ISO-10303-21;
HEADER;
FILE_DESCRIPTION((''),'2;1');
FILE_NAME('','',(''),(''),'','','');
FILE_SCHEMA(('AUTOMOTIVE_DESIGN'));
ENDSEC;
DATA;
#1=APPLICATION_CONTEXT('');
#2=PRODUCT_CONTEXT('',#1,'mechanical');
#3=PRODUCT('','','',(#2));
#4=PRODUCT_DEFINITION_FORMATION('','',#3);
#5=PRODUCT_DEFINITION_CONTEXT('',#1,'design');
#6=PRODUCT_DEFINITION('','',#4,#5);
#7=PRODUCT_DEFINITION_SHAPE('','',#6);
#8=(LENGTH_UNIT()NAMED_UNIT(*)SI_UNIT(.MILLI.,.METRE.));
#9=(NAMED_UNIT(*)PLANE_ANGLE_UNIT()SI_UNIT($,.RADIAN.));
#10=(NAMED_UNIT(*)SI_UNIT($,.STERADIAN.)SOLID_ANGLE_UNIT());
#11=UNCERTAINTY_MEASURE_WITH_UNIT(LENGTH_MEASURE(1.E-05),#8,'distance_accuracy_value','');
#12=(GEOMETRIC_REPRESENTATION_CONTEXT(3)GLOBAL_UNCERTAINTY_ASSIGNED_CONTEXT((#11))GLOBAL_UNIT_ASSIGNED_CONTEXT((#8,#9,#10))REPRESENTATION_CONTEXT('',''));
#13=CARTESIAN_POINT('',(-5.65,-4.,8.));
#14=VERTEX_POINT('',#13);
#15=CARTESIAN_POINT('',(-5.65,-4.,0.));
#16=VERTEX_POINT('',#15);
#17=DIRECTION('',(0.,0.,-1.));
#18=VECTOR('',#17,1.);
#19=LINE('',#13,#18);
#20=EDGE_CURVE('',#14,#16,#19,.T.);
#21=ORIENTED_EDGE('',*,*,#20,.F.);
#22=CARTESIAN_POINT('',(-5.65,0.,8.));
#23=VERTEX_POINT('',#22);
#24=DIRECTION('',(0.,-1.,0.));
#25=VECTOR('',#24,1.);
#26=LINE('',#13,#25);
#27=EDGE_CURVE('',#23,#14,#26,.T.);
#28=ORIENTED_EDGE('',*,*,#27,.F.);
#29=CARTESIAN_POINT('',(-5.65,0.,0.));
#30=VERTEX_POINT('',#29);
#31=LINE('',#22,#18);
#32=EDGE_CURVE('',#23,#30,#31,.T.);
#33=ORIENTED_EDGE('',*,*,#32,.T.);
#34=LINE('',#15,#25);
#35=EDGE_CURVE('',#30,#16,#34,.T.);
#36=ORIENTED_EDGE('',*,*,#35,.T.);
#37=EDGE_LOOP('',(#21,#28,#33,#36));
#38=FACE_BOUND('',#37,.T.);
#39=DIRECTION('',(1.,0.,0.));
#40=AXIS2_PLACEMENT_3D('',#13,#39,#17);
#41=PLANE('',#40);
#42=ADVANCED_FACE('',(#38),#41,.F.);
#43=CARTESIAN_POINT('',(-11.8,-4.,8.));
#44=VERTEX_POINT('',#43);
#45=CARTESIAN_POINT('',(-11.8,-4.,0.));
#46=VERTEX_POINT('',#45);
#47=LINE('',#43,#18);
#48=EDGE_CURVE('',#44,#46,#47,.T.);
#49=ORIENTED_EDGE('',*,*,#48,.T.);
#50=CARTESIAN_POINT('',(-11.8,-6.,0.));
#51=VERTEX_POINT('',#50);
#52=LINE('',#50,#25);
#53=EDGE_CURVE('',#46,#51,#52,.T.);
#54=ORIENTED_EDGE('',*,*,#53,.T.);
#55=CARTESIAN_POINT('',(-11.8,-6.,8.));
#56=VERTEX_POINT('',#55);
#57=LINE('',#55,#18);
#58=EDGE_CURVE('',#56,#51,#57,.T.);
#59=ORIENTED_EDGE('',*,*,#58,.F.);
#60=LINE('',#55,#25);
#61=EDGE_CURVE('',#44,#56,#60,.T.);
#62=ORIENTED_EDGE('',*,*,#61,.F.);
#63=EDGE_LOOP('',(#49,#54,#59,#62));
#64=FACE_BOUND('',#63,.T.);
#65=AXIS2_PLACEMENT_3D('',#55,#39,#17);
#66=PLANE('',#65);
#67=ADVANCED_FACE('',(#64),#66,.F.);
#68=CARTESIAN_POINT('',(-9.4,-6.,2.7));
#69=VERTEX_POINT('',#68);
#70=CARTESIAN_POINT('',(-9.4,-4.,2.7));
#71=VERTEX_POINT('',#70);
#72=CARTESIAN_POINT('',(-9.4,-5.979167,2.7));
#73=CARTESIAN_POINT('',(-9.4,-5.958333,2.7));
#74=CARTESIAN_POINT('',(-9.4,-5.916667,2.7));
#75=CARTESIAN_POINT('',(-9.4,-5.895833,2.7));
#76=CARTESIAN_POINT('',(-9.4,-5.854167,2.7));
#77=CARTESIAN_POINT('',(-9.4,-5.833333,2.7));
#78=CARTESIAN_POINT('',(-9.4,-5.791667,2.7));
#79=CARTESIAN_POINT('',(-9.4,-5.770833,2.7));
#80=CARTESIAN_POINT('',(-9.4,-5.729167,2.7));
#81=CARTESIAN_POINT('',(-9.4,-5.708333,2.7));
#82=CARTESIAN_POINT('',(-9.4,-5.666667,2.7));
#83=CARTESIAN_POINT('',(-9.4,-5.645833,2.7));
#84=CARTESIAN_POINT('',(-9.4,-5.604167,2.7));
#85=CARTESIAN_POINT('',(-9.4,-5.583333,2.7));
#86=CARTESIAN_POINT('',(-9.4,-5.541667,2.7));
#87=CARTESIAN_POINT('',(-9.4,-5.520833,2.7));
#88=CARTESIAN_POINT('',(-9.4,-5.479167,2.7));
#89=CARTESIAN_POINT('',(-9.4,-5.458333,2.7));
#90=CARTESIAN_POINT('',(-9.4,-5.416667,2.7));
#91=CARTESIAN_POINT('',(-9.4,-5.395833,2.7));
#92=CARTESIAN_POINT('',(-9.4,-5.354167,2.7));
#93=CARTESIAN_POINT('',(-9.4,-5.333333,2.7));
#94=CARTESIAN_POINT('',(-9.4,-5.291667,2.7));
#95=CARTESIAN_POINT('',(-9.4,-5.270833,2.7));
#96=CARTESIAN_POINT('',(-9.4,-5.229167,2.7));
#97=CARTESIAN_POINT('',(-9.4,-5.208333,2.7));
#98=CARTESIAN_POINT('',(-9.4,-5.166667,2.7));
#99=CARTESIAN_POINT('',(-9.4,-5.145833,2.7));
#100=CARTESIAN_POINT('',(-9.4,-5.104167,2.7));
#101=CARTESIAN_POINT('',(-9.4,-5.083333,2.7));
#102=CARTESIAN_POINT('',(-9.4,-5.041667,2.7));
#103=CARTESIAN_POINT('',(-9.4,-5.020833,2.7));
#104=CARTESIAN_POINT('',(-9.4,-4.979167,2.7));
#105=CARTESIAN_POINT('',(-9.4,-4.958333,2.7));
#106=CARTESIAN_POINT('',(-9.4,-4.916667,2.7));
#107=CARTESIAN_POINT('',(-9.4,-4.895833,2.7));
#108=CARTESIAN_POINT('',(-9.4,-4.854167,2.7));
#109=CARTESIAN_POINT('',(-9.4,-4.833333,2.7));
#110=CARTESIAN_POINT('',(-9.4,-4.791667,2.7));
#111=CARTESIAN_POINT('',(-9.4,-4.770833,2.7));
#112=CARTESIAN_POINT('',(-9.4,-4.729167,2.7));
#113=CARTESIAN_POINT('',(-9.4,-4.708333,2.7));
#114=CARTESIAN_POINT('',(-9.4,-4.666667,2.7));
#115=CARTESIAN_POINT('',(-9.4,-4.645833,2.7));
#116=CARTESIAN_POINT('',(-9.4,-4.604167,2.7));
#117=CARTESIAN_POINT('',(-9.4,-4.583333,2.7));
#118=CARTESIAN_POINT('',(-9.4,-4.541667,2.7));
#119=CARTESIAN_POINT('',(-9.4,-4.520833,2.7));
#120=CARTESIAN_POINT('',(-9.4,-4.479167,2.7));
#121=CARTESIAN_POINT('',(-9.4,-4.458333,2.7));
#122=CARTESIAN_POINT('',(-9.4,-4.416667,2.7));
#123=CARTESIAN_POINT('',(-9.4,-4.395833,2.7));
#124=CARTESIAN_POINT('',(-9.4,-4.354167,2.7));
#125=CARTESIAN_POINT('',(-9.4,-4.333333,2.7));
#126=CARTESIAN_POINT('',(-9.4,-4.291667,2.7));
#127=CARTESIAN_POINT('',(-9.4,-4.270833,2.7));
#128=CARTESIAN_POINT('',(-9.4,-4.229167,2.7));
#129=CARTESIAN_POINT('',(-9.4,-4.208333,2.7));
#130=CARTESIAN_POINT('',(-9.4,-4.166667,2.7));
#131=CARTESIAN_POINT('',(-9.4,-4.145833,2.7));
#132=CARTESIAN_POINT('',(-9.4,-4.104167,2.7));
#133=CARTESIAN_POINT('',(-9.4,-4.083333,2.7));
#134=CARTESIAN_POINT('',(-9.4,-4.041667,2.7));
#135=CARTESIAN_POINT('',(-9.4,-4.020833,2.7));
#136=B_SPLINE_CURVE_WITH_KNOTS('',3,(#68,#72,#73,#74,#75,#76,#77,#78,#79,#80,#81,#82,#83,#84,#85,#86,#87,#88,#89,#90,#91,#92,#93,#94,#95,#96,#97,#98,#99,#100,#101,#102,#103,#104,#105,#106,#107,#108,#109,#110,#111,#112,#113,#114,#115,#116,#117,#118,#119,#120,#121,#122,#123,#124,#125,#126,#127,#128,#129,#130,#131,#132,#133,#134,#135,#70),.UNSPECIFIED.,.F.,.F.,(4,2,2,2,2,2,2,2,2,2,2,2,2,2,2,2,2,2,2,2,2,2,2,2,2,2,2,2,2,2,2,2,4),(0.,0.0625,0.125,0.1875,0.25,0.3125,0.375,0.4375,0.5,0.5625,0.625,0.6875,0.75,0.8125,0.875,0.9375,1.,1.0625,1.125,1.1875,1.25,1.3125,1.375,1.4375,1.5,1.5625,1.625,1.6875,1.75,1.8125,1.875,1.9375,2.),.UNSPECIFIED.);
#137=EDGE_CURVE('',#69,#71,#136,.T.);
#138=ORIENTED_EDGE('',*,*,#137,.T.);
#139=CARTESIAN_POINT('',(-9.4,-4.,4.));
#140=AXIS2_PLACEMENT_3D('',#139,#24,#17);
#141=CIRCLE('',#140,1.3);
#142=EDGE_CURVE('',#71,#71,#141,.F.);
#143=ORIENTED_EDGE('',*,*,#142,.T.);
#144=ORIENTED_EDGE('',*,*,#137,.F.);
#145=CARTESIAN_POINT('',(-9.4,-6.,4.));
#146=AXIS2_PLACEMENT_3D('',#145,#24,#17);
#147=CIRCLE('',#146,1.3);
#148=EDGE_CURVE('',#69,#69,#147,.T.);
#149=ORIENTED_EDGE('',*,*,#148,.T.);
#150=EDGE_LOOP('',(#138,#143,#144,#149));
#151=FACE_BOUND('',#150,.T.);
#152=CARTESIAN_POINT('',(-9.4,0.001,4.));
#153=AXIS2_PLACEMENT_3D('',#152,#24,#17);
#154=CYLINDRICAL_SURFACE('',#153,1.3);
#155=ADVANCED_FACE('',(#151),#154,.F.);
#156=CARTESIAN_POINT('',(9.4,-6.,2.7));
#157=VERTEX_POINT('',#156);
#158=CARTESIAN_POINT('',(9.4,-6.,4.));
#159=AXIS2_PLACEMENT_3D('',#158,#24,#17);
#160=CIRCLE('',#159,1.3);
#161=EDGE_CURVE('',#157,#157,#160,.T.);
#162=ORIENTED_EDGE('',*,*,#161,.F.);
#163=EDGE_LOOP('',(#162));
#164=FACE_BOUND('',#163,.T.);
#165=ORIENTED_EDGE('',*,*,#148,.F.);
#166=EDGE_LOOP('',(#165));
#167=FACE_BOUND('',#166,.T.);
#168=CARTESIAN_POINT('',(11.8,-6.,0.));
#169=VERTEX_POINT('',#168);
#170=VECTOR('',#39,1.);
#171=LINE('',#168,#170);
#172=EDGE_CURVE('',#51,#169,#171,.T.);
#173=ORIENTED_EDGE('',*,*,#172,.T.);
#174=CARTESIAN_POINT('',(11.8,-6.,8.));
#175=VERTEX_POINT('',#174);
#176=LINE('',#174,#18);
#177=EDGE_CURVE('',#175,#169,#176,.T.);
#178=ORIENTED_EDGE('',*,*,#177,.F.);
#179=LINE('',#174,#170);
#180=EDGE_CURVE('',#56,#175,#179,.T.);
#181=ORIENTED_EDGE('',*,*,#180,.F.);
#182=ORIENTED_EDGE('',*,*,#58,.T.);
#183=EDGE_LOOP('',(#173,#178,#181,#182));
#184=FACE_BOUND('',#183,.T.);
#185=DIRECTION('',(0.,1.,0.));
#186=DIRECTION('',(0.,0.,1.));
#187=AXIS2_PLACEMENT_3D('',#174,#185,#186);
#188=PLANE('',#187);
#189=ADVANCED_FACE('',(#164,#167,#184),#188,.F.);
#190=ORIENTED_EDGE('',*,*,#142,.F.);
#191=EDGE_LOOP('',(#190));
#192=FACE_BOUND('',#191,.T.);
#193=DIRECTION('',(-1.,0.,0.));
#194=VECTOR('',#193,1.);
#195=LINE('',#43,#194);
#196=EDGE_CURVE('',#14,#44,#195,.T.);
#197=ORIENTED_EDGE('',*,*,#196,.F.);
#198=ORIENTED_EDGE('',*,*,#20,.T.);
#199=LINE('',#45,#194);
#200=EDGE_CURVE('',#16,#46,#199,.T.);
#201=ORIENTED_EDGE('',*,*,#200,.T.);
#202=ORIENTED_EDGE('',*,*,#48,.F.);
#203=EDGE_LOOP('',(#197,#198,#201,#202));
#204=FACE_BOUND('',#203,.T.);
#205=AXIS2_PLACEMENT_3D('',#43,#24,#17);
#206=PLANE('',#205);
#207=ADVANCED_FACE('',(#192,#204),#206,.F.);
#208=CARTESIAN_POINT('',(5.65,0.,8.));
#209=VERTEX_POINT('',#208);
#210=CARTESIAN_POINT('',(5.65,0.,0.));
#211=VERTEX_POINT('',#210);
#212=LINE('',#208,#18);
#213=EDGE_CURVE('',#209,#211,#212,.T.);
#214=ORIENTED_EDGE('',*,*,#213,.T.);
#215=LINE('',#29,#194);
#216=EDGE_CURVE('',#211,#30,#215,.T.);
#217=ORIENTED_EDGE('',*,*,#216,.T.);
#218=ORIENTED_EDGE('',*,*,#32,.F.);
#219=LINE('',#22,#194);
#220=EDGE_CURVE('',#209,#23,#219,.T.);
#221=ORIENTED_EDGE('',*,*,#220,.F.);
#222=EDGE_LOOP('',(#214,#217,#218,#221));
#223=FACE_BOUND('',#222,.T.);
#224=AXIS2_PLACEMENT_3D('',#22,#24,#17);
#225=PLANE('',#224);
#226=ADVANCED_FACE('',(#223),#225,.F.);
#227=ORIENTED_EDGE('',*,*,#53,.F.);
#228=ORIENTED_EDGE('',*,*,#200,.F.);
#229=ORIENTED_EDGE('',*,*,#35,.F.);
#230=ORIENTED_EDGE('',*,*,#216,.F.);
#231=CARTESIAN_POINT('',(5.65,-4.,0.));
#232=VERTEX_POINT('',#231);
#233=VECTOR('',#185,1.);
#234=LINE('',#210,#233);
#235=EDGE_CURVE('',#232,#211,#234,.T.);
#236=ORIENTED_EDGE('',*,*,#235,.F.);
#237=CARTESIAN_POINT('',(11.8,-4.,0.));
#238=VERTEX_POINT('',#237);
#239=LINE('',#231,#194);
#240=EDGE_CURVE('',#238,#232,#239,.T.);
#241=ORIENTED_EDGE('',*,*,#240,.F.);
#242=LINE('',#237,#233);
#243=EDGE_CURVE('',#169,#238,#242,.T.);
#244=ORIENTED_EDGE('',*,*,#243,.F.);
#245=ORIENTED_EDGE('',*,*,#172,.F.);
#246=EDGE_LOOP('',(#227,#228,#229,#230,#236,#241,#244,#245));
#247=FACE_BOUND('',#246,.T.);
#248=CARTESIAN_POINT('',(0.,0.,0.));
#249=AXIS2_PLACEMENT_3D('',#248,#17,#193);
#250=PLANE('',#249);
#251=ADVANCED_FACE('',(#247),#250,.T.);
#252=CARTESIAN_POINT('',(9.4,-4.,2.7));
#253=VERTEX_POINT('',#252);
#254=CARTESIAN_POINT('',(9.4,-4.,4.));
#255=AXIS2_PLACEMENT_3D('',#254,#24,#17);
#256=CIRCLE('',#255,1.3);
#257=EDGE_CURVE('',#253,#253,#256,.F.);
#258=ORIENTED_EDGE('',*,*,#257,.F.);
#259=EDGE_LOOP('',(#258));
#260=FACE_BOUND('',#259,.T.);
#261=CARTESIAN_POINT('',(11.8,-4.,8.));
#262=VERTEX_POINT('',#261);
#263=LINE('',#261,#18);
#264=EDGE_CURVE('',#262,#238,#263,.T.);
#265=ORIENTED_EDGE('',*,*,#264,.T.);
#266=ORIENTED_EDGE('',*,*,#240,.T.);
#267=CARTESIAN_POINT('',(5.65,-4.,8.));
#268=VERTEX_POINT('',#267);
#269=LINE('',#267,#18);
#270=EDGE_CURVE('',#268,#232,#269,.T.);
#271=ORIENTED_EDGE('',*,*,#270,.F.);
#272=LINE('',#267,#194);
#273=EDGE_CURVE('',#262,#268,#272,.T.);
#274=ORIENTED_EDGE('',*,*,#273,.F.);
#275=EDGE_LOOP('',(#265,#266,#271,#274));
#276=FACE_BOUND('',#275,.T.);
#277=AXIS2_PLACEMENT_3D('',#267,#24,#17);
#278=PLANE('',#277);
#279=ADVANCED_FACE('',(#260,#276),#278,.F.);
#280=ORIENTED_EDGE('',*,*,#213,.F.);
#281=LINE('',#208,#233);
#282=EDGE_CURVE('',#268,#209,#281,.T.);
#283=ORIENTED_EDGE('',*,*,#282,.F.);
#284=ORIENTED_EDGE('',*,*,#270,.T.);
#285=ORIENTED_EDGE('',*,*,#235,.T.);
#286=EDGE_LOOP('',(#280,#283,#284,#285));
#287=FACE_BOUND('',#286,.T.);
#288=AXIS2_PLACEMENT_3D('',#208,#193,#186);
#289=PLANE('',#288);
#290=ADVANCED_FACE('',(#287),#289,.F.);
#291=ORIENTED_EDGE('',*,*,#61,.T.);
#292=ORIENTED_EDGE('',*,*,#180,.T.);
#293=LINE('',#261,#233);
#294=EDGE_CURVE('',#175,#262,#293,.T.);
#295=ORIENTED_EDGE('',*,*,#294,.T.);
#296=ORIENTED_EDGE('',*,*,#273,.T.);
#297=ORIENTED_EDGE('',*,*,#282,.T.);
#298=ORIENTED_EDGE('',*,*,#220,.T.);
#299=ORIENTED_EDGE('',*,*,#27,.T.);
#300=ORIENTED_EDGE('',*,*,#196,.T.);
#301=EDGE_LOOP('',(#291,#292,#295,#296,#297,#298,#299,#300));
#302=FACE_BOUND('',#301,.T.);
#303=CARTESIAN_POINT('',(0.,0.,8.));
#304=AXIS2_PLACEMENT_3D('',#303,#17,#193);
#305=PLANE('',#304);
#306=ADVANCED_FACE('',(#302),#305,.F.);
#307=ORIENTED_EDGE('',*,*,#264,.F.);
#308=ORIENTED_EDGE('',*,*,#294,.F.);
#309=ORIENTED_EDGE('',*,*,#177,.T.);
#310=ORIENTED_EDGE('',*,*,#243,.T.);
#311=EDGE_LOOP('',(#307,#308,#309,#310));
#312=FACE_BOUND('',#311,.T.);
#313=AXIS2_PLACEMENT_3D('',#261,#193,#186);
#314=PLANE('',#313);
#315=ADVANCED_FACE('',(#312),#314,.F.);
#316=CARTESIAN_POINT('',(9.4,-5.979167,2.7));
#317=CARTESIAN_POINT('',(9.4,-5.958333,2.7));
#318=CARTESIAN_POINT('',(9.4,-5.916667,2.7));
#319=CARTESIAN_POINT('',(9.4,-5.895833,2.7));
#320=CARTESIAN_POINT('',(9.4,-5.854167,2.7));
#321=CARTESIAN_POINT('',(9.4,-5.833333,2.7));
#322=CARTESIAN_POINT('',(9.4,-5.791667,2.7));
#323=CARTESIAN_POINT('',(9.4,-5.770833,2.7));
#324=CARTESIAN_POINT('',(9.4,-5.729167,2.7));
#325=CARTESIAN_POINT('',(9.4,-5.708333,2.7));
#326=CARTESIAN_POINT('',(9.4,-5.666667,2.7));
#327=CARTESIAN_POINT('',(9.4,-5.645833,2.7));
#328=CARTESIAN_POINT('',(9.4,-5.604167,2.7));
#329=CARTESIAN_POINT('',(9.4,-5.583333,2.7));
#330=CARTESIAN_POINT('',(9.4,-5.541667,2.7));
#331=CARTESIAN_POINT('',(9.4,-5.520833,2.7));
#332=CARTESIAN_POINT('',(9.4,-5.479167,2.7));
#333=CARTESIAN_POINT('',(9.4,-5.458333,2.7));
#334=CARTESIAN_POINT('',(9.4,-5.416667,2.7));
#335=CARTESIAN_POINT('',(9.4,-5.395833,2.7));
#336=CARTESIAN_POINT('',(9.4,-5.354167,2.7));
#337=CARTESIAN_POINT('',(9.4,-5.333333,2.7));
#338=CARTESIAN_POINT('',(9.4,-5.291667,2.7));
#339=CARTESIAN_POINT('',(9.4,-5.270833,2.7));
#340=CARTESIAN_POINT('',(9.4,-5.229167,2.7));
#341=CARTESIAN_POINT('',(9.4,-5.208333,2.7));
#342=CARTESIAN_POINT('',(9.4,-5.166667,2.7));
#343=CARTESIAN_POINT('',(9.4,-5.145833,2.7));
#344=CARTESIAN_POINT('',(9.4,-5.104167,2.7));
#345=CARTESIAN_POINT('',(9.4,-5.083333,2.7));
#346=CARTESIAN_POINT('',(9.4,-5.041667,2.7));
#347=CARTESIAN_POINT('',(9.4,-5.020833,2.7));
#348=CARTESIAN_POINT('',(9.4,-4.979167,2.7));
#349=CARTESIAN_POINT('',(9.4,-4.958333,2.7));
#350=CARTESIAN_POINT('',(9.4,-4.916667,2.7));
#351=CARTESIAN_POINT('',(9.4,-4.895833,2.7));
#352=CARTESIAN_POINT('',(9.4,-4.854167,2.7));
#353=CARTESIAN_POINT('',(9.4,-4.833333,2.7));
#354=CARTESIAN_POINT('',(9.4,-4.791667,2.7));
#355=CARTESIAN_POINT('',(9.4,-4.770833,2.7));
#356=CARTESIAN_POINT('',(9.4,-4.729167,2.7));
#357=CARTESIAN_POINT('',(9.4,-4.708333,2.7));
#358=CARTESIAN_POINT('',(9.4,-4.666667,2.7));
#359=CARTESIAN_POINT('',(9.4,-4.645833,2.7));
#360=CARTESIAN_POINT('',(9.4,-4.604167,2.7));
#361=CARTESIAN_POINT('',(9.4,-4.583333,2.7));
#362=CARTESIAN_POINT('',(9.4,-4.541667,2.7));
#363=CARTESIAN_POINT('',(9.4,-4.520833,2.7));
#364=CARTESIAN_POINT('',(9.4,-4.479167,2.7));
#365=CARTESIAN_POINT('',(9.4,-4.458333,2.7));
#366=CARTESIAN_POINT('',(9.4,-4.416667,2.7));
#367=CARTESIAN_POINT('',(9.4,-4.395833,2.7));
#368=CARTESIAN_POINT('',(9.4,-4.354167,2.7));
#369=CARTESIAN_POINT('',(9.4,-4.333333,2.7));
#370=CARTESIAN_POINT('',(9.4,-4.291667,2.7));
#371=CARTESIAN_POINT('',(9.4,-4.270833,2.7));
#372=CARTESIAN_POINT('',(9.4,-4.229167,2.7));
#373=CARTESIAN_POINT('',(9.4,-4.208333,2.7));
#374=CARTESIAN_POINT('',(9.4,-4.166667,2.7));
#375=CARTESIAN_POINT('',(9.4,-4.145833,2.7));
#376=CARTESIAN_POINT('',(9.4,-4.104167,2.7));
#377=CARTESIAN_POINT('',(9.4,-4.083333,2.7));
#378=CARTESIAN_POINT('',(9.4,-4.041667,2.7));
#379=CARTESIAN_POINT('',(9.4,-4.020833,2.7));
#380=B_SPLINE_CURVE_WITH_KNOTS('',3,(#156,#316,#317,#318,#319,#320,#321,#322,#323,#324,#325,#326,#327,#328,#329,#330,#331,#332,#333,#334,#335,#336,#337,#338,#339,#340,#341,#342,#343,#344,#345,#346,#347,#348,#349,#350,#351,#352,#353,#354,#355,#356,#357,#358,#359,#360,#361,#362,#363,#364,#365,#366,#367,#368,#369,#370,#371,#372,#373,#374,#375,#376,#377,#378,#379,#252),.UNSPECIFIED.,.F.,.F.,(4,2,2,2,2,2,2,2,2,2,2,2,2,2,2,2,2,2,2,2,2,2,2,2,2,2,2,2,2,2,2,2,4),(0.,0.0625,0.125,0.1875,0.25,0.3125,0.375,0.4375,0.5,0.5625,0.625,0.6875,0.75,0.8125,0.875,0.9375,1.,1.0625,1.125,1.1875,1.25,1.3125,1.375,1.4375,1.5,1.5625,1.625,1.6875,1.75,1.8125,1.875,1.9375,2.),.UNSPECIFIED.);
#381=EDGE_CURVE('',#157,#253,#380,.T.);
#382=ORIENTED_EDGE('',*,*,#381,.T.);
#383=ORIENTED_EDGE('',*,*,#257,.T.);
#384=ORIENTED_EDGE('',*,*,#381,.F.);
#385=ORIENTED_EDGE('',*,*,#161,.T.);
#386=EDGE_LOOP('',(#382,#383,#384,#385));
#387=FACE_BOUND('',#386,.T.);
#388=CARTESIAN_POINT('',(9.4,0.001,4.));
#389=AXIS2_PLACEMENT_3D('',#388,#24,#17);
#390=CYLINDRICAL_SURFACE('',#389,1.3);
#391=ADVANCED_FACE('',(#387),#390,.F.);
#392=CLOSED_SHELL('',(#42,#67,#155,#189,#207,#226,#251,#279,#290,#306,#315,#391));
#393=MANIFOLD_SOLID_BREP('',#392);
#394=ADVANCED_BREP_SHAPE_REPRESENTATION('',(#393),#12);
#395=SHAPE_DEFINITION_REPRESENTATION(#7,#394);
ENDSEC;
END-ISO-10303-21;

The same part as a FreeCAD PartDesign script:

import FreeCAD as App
import Part
import Sketcher
from FreeCAD import Vector

doc = App.newDocument("Part")
body = doc.addObject("PartDesign::Body", "Body")

# Sketch on XY plane
sketch1 = body.newObject("Sketcher::SketchObject", "Sketch")
sketch1.AttachmentSupport = (doc.getObject("XY_Plane"), [""])
sketch1.MapMode = "FlatFace"
sketch1.addGeometry([
    Part.LineSegment(Vector(5.65, 0, 0), Vector(-5.65, 0, 0)),  # 0
    Part.LineSegment(Vector(-5.65, 0, 0), Vector(-5.65, -4, 0)),  # 1
    Part.LineSegment(Vector(-5.65, -4, 0), Vector(-11.8, -4, 0)),  # 2
    Part.LineSegment(Vector(-11.8, -4, 0), Vector(-11.8, -6, 0)),  # 3
    Part.LineSegment(Vector(-11.8, -6, 0), Vector(11.8, -6, 0)),  # 4
    Part.LineSegment(Vector(11.8, -6, 0), Vector(11.8, -4, 0)),  # 5
    Part.LineSegment(Vector(11.8, -4, 0), Vector(5.65, -4, 0)),  # 6
    Part.LineSegment(Vector(5.65, -4, 0), Vector(5.65, 0, 0)),  # 7
], False)
sketch1.addConstraint([
    Sketcher.Constraint("Coincident", 0, 2, 1, 1),
    Sketcher.Constraint("Coincident", 1, 2, 2, 1),
    Sketcher.Constraint("Coincident", 2, 2, 3, 1),
    Sketcher.Constraint("Coincident", 3, 2, 4, 1),
    Sketcher.Constraint("Coincident", 4, 2, 5, 1),
    Sketcher.Constraint("Coincident", 5, 2, 6, 1),
    Sketcher.Constraint("Coincident", 6, 2, 7, 1),
    Sketcher.Constraint("Coincident", 7, 2, 0, 1),
    Sketcher.Constraint("Horizontal", 0),
    Sketcher.Constraint("Vertical", 1),
    Sketcher.Constraint("Horizontal", 2),
    Sketcher.Constraint("Vertical", 3),
    Sketcher.Constraint("Horizontal", 4),
    Sketcher.Constraint("Vertical", 5),
    Sketcher.Constraint("Horizontal", 6),
    Sketcher.Constraint("Vertical", 7),
    Sketcher.Constraint("Symmetric", 0, 2, 7, 2, -1, 1),
    Sketcher.Constraint("Symmetric", 2, 2, 5, 2, -2),
    Sketcher.Constraint("DistanceY", 1, 2, 1, 1, 4.0),
    Sketcher.Constraint("DistanceY", 3, 2, 3, 1, 2.0),
    Sketcher.Constraint("DistanceX", 0, 2, 0, 1, 11.3),
    Sketcher.Constraint("DistanceX", 4, 1, 4, 2, 23.6),
])
pad1 = body.newObject("PartDesign::Pad", "Pad")
pad1.Profile = sketch1
pad1.Length = 8

# Sketch on XZ plane
sketch2 = body.newObject("Sketcher::SketchObject", "Sketch001")
sketch2.AttachmentSupport = (doc.getObject("XZ_Plane"), [""])
sketch2.MapMode = "FlatFace"
sketch2.AttachmentOffset = App.Placement(Vector(0, 0, 6), App.Rotation())
sketch2.addGeometry(Part.Circle(Vector(-9.4, 4, 0), Vector(0, 0, 1), 1.3), False)
sketch2.addConstraint([
    Sketcher.Constraint("Diameter", 0, 2.6),
    Sketcher.Constraint("DistanceY", -1, 1, 0, 3, 4.0),
    Sketcher.Constraint("DistanceX", 0, 3, -1, 1, 9.4),
])
pocket1 = body.newObject("PartDesign::Pocket", "Pocket")
pocket1.Profile = sketch2
pocket1.Type = "UpToFirst"

# Sketch on XZ plane
sketch3 = body.newObject("Sketcher::SketchObject", "Sketch002")
sketch3.AttachmentSupport = (doc.getObject("XZ_Plane"), [""])
sketch3.MapMode = "FlatFace"
sketch3.AttachmentOffset = App.Placement(Vector(0, 0, 6), App.Rotation())
sketch3.addGeometry(Part.Circle(Vector(9.4, 4, 0), Vector(0, 0, 1), 1.3), False)
sketch3.addConstraint([
    Sketcher.Constraint("Diameter", 0, 2.6),
    Sketcher.Constraint("DistanceY", -1, 1, 0, 3, 4.0),
    Sketcher.Constraint("DistanceX", -1, 1, 0, 3, 9.4),
])
pocket2 = body.newObject("PartDesign::Pocket", "Pocket001")
pocket2.Profile = sketch3
pocket2.Type = "UpToFirst"

doc.recompute()
